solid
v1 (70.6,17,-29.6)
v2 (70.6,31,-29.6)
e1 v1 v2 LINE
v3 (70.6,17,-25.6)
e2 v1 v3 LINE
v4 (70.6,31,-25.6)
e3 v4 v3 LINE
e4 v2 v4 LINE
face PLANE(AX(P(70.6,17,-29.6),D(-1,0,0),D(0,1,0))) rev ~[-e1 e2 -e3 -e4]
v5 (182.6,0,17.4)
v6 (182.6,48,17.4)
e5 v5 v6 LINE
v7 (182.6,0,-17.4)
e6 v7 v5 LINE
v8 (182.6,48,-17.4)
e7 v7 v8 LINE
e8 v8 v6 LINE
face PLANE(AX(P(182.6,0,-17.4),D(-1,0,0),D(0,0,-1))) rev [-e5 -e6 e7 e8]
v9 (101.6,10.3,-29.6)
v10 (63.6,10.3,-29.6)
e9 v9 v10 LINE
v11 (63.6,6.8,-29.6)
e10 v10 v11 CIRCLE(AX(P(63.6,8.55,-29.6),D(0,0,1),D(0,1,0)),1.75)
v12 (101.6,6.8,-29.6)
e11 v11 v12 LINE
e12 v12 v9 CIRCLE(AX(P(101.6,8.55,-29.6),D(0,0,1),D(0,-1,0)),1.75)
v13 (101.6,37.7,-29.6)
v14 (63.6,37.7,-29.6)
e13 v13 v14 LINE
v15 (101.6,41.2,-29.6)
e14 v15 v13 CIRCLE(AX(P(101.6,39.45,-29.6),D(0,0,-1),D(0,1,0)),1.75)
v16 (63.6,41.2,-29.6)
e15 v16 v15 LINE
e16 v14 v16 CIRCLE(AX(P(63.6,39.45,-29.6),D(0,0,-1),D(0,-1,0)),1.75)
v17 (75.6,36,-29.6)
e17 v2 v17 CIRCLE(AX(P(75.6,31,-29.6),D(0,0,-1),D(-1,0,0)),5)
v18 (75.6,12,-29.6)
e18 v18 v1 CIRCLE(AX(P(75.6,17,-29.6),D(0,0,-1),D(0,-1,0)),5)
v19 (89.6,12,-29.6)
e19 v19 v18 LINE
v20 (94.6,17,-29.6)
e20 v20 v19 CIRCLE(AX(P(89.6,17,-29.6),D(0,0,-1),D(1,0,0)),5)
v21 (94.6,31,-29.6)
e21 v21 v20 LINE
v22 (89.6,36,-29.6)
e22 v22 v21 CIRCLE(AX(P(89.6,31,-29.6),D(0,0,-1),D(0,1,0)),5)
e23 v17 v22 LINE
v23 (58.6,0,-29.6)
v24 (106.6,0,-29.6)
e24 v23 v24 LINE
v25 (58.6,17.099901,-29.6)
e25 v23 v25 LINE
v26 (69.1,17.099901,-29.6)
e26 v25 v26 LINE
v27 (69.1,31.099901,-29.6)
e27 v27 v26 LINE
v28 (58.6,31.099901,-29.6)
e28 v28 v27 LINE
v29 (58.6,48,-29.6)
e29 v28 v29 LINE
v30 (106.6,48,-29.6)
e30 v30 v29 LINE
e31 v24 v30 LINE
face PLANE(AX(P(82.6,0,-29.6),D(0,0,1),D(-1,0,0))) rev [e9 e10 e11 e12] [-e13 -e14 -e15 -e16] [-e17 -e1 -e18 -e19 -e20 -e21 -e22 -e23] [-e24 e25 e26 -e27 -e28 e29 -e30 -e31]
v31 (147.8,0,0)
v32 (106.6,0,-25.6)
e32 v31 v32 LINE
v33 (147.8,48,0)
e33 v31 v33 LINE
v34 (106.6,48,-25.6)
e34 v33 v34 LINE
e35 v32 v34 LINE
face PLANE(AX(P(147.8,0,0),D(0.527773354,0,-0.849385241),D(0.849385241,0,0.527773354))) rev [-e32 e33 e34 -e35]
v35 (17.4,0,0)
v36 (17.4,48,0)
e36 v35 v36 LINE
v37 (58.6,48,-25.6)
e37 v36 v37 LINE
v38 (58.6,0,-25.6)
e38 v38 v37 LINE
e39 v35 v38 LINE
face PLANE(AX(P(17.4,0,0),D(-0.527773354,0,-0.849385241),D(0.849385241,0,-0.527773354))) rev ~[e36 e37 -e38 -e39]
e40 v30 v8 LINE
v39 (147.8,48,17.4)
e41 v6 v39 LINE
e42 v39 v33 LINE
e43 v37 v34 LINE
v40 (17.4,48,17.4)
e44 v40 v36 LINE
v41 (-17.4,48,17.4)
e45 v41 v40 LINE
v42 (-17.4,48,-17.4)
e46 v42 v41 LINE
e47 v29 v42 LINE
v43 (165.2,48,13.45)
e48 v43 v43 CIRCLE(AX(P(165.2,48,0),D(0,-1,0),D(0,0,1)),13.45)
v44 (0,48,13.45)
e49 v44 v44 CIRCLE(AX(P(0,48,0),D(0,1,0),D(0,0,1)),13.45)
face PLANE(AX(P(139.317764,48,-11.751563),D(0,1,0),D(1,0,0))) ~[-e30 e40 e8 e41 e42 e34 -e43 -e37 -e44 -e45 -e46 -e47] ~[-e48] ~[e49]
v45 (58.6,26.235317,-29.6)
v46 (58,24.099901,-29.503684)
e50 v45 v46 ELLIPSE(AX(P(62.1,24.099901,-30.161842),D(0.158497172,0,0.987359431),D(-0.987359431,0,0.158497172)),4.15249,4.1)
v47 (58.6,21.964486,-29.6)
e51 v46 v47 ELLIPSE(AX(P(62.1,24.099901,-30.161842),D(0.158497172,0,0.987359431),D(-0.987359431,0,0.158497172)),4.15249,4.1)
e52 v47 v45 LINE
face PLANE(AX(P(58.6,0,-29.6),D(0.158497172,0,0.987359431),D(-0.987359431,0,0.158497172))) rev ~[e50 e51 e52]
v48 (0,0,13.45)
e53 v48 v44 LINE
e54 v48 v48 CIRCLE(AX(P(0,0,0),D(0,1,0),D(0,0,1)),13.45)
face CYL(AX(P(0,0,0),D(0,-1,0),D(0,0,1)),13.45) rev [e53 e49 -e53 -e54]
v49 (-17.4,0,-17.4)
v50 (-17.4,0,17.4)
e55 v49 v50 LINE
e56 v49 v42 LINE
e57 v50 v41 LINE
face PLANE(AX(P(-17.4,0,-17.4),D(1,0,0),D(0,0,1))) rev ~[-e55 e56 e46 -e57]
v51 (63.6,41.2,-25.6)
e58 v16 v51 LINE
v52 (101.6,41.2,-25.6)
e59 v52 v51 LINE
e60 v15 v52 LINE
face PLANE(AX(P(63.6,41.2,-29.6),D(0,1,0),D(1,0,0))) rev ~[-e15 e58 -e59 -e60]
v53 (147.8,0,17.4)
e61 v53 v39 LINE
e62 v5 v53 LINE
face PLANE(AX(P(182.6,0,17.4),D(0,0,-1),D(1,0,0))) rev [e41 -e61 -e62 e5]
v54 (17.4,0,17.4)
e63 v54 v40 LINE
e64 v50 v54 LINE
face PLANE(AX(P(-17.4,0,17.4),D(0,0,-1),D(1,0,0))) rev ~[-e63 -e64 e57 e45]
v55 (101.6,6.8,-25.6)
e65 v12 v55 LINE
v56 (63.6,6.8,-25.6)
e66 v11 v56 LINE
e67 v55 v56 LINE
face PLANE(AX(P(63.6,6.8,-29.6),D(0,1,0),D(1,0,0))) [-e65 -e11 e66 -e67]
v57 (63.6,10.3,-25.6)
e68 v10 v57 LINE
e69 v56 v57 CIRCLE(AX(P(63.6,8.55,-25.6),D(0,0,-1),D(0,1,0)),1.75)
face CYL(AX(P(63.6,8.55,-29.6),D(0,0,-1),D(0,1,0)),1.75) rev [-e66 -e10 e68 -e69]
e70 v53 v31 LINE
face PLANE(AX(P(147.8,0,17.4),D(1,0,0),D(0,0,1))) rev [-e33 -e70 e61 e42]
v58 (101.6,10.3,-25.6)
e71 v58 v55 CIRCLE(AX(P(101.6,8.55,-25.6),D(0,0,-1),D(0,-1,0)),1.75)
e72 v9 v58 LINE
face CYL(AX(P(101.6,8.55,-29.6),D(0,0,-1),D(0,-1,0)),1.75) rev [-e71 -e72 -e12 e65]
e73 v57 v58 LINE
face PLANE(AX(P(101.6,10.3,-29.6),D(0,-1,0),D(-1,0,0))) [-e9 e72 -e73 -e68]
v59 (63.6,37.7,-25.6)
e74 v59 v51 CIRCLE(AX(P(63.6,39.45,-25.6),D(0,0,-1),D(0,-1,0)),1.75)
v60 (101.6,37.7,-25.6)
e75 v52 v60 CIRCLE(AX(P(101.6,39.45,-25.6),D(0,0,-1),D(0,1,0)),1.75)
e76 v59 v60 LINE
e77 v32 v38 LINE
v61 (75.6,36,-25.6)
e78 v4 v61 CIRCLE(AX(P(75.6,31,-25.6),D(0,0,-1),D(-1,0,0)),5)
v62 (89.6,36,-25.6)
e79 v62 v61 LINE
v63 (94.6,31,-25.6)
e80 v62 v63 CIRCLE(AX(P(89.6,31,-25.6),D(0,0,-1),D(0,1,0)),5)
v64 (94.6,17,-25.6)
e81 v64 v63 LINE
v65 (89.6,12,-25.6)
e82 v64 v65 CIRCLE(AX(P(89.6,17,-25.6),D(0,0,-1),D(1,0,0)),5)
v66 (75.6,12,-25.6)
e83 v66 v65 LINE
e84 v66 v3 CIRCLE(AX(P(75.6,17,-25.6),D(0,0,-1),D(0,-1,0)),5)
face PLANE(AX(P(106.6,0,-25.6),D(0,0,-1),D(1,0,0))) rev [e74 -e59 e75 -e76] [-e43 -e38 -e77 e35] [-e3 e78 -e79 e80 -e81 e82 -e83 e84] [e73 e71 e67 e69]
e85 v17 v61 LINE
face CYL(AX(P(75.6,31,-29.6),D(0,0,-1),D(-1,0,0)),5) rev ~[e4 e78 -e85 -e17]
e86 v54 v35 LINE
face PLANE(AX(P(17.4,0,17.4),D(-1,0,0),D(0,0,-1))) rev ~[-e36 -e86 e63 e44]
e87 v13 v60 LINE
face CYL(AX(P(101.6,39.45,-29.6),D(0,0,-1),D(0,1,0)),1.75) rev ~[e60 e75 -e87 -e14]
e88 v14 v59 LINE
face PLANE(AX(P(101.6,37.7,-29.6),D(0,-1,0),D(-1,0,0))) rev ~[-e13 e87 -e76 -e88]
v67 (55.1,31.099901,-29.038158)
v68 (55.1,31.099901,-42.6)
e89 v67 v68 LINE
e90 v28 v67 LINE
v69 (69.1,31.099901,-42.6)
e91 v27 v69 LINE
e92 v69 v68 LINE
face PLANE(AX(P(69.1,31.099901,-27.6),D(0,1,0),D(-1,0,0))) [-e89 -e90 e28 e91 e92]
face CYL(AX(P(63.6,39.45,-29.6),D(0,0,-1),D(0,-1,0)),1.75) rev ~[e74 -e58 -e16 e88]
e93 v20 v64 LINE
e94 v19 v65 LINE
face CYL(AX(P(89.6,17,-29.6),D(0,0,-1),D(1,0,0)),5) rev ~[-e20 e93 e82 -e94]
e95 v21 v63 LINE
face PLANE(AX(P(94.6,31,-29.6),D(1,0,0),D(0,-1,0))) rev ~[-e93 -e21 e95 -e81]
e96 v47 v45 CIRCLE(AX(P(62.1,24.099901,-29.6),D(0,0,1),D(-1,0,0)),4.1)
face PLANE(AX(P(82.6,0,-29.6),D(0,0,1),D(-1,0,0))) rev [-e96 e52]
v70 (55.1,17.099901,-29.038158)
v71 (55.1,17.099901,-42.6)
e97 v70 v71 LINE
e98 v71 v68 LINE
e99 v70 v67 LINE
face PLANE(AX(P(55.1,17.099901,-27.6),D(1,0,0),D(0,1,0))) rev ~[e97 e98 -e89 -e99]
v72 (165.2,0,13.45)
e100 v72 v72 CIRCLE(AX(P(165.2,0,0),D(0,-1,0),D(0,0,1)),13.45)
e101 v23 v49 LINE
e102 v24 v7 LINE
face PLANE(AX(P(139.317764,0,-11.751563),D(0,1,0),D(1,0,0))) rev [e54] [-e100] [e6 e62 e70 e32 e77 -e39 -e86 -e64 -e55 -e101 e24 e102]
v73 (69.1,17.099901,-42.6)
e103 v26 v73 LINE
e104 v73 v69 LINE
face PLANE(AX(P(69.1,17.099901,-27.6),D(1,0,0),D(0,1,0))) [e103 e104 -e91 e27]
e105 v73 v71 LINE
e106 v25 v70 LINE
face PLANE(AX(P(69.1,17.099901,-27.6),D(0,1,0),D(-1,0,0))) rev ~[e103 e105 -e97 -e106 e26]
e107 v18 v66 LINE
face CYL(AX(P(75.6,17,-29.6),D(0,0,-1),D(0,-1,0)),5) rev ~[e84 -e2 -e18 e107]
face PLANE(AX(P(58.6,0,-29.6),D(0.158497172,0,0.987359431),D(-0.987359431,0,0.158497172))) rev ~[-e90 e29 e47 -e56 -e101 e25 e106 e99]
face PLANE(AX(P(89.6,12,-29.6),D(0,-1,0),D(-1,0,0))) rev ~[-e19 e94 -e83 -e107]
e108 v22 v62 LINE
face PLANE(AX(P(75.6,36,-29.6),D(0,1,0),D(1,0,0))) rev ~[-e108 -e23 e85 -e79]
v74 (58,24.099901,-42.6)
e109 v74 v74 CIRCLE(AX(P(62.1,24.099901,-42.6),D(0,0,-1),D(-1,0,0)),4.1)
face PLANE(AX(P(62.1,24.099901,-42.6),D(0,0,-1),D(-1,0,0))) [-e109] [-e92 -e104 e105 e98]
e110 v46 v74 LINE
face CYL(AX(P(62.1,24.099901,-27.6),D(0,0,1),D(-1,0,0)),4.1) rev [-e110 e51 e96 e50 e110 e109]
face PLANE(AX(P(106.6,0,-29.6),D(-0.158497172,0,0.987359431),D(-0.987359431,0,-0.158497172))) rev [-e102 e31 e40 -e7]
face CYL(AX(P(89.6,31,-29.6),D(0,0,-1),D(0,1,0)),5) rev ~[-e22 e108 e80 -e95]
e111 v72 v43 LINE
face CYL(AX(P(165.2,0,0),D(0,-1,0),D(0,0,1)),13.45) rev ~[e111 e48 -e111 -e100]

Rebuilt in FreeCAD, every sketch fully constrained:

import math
import FreeCAD as App
import Part
import Sketcher

V = App.Vector
Q = App.Units.Quantity

doc = App.newDocument("Part")
body = doc.addObject("PartDesign::Body", "Body")

sketch1 = body.newObject("Sketcher::SketchObject", "Sketch")
sketch1.AttachmentSupport = (doc.getObject("XZ_Plane"), [""])
sketch1.MapMode = "FlatFace"
sketch1.addGeometry([
    Part.LineSegment(V(-17.4, 17.4, 0), V(17.4, 17.4, 0)),
    Part.LineSegment(V(17.4, 17.4, 0), V(17.4, 0, 0)),
    Part.LineSegment(V(17.4, 0, 0), V(58.6, -25.6, 0)),
    Part.LineSegment(V(58.6, -25.6, 0), V(82.6, -25.6, 0)),
    Part.LineSegment(V(82.6, -25.6, 0), V(82.6, -29.6, 0)),
    Part.LineSegment(V(82.6, -29.6, 0), V(58.6, -29.6, 0)),
    Part.LineSegment(V(58.6, -29.6, 0), V(-17.4, -17.4, 0)),
    Part.LineSegment(V(-17.4, -17.4, 0), V(-17.4, 17.4, 0)),
    Part.Circle(V(0, 0, 0), V(0, 0, 1), 13.4),
], False)
sketch1.addConstraint([
    Sketcher.Constraint("Coincident", 0, 2, 1, 1),
    Sketcher.Constraint("Coincident", 1, 2, 2, 1),
    Sketcher.Constraint("Coincident", 2, 2, 3, 1),
    Sketcher.Constraint("Coincident", 3, 2, 4, 1),
    Sketcher.Constraint("Coincident", 4, 2, 5, 1),
    Sketcher.Constraint("Coincident", 5, 2, 6, 1),
    Sketcher.Constraint("Coincident", 6, 2, 7, 1),
    Sketcher.Constraint("Coincident", 7, 2, 0, 1),
    Sketcher.Constraint("Horizontal", 0),
    Sketcher.Constraint("Vertical", 1),
    Sketcher.Constraint("Horizontal", 3),
    Sketcher.Constraint("Vertical", 4),
    Sketcher.Constraint("Horizontal", 5),
    Sketcher.Constraint("Vertical", 7),
    Sketcher.Constraint("Coincident", 8, 3, -1, 1),
    Sketcher.Constraint("Symmetric", 0, 2, 6, 2, -1, 1),
    Sketcher.Constraint("PointOnObject", 1, 2, -1),
    Sketcher.Constraint("Vertical", 2, 2, 5, 2),
    Sketcher.Constraint("Equal", 0, 7),
    Sketcher.Constraint("Diameter", 8, Q("26.9 mm")),
    Sketcher.Constraint("DistanceX", 3, 1, 3, 2, Q("24 mm")),
    Sketcher.Constraint("DistanceY", 4, 2, 4, 1, Q("4 mm")),
    Sketcher.Constraint("DistanceX", 0, 1, 0, 2, Q("34.8 mm")),
    Sketcher.Constraint("DistanceY", 2, 2, 0, 2, Q("43 mm")),
    Sketcher.Constraint("DistanceX", 6, 2, 2, 2, Q("76 mm")),
])
pad1 = body.newObject("PartDesign::Pad", "Pad")
pad1.Profile = sketch1
pad1.Length = 48
pad1.Reversed = True
doc.recompute()

datumplane = body.newObject("PartDesign::Plane", "DatumPlane")
datumplane.AttachmentSupport = (doc.getObject("YZ_Plane"), [""])
datumplane.MapMode = "FlatFace"
datumplane.AttachmentOffset = App.Placement(V(0, 0, 82.6), App.Rotation())
mirrored = body.newObject("PartDesign::Mirrored", "Mirrored")
mirrored.Originals = [pad1]
mirrored.MirrorPlane = (datumplane, [""])
body.Tip = mirrored

sketch2 = body.newObject("Sketcher::SketchObject", "Sketch001")
sketch2.AttachmentSupport = (doc.getObject("XY_Plane"), [""])
sketch2.MapMode = "FlatFace"
sketch2.AttachmentOffset = App.Placement(V(0, 0, -29.6), App.Rotation())
sketch2.addGeometry([
    Part.LineSegment(V(63.6, 10.3, 0), V(101.6, 10.3, 0)),
    Part.ArcOfCircle(Part.Circle(V(101.6, 8.6, 0), V(0, 0, 1), 1.8), math.radians(-90), math.radians(90)),
    Part.LineSegment(V(101.6, 6.8, 0), V(63.6, 6.8, 0)),
    Part.ArcOfCircle(Part.Circle(V(63.6, 8.6, 0), V(0, 0, 1), 1.8), math.radians(90), math.radians(270)),
    Part.LineSegment(V(101.6, 37.7, 0), V(63.6, 37.7, 0)),
    Part.ArcOfCircle(Part.Circle(V(63.6, 39.5, 0), V(0, 0, 1), 1.8), math.radians(90), math.radians(270)),
    Part.LineSegment(V(63.6, 41.2, 0), V(101.6, 41.2, 0)),
    Part.ArcOfCircle(Part.Circle(V(101.6, 39.5, 0), V(0, 0, 1), 1.8), math.radians(-90), math.radians(90)),
    Part.LineSegment(V(89.6, 12, 0), V(75.6, 12, 0)),
    Part.ArcOfCircle(Part.Circle(V(75.6, 17, 0), V(0, 0, 1), 5), math.radians(180), math.radians(270)),
    Part.LineSegment(V(70.6, 17, 0), V(70.6, 31, 0)),
    Part.ArcOfCircle(Part.Circle(V(75.6, 31, 0), V(0, 0, 1), 5), math.radians(90), math.radians(180)),
    Part.LineSegment(V(75.6, 36, 0), V(89.6, 36, 0)),
    Part.ArcOfCircle(Part.Circle(V(89.6, 31, 0), V(0, 0, 1), 5), math.radians(0), math.radians(90)),
    Part.LineSegment(V(94.6, 31, 0), V(94.6, 17, 0)),
    Part.ArcOfCircle(Part.Circle(V(89.6, 17, 0), V(0, 0, 1), 5), math.radians(-90), math.radians(0)),
], False)
sketch2.addConstraint([
    Sketcher.Constraint("Tangent", 0, 2, 1, 2),
    Sketcher.Constraint("Tangent", 1, 1, 2, 1),
    Sketcher.Constraint("Tangent", 2, 2, 3, 2),
    Sketcher.Constraint("Tangent", 3, 1, 0, 1),
    Sketcher.Constraint("Tangent", 4, 2, 5, 2),
    Sketcher.Constraint("Tangent", 5, 1, 6, 1),
    Sketcher.Constraint("Tangent", 6, 2, 7, 2),
    Sketcher.Constraint("Tangent", 7, 1, 4, 1),
    Sketcher.Constraint("Tangent", 8, 2, 9, 2),
    Sketcher.Constraint("Tangent", 9, 1, 10, 1),
    Sketcher.Constraint("Tangent", 10, 2, 11, 2),
    Sketcher.Constraint("Tangent", 11, 1, 12, 1),
    Sketcher.Constraint("Tangent", 12, 2, 13, 2),
    Sketcher.Constraint("Tangent", 13, 1, 14, 1),
    Sketcher.Constraint("Tangent", 14, 2, 15, 2),
    Sketcher.Constraint("Tangent", 15, 1, 8, 1),
    Sketcher.Constraint("Horizontal", 0),
    Sketcher.Constraint("Horizontal", 2),
    Sketcher.Constraint("Horizontal", 4),
    Sketcher.Constraint("Horizontal", 6),
    Sketcher.Constraint("Horizontal", 8),
    Sketcher.Constraint("Vertical", 10),
    Sketcher.Constraint("Horizontal", 12),
    Sketcher.Constraint("Vertical", 14),
    Sketcher.Constraint("Equal", 3, 5),
    Sketcher.Constraint("Equal", 9, 11),
    Sketcher.Constraint("Equal", 11, 13),
    Sketcher.Constraint("Equal", 13, 15),
    Sketcher.Constraint("Vertical", 3, 3, 5, 3),
    Sketcher.Constraint("Vertical", 1, 3, 7, 3),
    Sketcher.Constraint("Equal", 12, 10),
    Sketcher.Constraint("Radius", 9, Q("5 mm")),
    Sketcher.Constraint("DistanceX", 0, 1, 0, 2, Q("38 mm")),
    Sketcher.Constraint("DistanceX", 8, 2, 8, 1, Q("14 mm")),
    Sketcher.Constraint("Radius", 1, Q("1.75 mm")),
    Sketcher.Constraint("DistanceY", -1, 1, 9, 3, Q("17 mm")),
    Sketcher.Constraint("DistanceX", 3, 3, 9, 3, Q("12 mm")),
    Sketcher.Constraint("DistanceX", -1, 1, 1, 3, Q("101.6 mm")),
    Sketcher.Constraint("DistanceY", -1, 1, 0, 2, Q("10.3 mm")),
    Sketcher.Constraint("DistanceY", -1, 1, 4, 2, Q("37.7 mm")),
])
pocket1 = body.newObject("PartDesign::Pocket", "Pocket")
pocket1.Profile = sketch2
pocket1.Length = 10
pocket1.Reversed = True

sketch3 = body.newObject("Sketcher::SketchObject", "Sketch002")
sketch3.AttachmentSupport = (doc.getObject("XY_Plane"), [""])
sketch3.MapMode = "FlatFace"
sketch3.AttachmentOffset = App.Placement(V(0, 0, -29.6), App.Rotation())
sketch3.addGeometry([
    Part.LineSegment(V(69.1, 31.1, 0), V(69.1, 17.1, 0)),
    Part.LineSegment(V(69.1, 17.1, 0), V(55.1, 17.1, 0)),
    Part.LineSegment(V(55.1, 17.1, 0), V(55.1, 31.1, 0)),
    Part.LineSegment(V(55.1, 31.1, 0), V(69.1, 31.1, 0)),
    Part.Circle(V(62.1, 24.1, 0), V(0, 0, 1), 4.1),
], False)
sketch3.addConstraint([
    Sketcher.Constraint("Coincident", 0, 2, 1, 1),
    Sketcher.Constraint("Coincident", 1, 2, 2, 1),
    Sketcher.Constraint("Coincident", 2, 2, 3, 1),
    Sketcher.Constraint("Coincident", 3, 2, 0, 1),
    Sketcher.Constraint("Vertical", 0),
    Sketcher.Constraint("Horizontal", 1),
    Sketcher.Constraint("Vertical", 2),
    Sketcher.Constraint("Horizontal", 3),
    Sketcher.Constraint("Equal", 3, 0),
    Sketcher.Constraint("Diameter", 4, Q("8.2 mm")),
    Sketcher.Constraint("DistanceX", 1, 2, 1, 1, Q("14 mm")),
    Sketcher.Constraint("DistanceX", 4, 3, 0, 2, Q("7 mm")),
    Sketcher.Constraint("DistanceY", 0, 2, 4, 3, Q("7 mm")),
    Sketcher.Constraint("DistanceX", -1, 1, 4, 3, Q("62.1 mm")),
    Sketcher.Constraint("DistanceY", -1, 1, 4, 3, Q("24.099901 mm")),
])
pad2 = body.newObject("PartDesign::Pad", "Pad001")
pad2.Profile = sketch3
pad2.Type = "TwoLengths"
pad2.Length = 13
pad2.Length2 = 2
pad2.Reversed = True

doc.recompute()
